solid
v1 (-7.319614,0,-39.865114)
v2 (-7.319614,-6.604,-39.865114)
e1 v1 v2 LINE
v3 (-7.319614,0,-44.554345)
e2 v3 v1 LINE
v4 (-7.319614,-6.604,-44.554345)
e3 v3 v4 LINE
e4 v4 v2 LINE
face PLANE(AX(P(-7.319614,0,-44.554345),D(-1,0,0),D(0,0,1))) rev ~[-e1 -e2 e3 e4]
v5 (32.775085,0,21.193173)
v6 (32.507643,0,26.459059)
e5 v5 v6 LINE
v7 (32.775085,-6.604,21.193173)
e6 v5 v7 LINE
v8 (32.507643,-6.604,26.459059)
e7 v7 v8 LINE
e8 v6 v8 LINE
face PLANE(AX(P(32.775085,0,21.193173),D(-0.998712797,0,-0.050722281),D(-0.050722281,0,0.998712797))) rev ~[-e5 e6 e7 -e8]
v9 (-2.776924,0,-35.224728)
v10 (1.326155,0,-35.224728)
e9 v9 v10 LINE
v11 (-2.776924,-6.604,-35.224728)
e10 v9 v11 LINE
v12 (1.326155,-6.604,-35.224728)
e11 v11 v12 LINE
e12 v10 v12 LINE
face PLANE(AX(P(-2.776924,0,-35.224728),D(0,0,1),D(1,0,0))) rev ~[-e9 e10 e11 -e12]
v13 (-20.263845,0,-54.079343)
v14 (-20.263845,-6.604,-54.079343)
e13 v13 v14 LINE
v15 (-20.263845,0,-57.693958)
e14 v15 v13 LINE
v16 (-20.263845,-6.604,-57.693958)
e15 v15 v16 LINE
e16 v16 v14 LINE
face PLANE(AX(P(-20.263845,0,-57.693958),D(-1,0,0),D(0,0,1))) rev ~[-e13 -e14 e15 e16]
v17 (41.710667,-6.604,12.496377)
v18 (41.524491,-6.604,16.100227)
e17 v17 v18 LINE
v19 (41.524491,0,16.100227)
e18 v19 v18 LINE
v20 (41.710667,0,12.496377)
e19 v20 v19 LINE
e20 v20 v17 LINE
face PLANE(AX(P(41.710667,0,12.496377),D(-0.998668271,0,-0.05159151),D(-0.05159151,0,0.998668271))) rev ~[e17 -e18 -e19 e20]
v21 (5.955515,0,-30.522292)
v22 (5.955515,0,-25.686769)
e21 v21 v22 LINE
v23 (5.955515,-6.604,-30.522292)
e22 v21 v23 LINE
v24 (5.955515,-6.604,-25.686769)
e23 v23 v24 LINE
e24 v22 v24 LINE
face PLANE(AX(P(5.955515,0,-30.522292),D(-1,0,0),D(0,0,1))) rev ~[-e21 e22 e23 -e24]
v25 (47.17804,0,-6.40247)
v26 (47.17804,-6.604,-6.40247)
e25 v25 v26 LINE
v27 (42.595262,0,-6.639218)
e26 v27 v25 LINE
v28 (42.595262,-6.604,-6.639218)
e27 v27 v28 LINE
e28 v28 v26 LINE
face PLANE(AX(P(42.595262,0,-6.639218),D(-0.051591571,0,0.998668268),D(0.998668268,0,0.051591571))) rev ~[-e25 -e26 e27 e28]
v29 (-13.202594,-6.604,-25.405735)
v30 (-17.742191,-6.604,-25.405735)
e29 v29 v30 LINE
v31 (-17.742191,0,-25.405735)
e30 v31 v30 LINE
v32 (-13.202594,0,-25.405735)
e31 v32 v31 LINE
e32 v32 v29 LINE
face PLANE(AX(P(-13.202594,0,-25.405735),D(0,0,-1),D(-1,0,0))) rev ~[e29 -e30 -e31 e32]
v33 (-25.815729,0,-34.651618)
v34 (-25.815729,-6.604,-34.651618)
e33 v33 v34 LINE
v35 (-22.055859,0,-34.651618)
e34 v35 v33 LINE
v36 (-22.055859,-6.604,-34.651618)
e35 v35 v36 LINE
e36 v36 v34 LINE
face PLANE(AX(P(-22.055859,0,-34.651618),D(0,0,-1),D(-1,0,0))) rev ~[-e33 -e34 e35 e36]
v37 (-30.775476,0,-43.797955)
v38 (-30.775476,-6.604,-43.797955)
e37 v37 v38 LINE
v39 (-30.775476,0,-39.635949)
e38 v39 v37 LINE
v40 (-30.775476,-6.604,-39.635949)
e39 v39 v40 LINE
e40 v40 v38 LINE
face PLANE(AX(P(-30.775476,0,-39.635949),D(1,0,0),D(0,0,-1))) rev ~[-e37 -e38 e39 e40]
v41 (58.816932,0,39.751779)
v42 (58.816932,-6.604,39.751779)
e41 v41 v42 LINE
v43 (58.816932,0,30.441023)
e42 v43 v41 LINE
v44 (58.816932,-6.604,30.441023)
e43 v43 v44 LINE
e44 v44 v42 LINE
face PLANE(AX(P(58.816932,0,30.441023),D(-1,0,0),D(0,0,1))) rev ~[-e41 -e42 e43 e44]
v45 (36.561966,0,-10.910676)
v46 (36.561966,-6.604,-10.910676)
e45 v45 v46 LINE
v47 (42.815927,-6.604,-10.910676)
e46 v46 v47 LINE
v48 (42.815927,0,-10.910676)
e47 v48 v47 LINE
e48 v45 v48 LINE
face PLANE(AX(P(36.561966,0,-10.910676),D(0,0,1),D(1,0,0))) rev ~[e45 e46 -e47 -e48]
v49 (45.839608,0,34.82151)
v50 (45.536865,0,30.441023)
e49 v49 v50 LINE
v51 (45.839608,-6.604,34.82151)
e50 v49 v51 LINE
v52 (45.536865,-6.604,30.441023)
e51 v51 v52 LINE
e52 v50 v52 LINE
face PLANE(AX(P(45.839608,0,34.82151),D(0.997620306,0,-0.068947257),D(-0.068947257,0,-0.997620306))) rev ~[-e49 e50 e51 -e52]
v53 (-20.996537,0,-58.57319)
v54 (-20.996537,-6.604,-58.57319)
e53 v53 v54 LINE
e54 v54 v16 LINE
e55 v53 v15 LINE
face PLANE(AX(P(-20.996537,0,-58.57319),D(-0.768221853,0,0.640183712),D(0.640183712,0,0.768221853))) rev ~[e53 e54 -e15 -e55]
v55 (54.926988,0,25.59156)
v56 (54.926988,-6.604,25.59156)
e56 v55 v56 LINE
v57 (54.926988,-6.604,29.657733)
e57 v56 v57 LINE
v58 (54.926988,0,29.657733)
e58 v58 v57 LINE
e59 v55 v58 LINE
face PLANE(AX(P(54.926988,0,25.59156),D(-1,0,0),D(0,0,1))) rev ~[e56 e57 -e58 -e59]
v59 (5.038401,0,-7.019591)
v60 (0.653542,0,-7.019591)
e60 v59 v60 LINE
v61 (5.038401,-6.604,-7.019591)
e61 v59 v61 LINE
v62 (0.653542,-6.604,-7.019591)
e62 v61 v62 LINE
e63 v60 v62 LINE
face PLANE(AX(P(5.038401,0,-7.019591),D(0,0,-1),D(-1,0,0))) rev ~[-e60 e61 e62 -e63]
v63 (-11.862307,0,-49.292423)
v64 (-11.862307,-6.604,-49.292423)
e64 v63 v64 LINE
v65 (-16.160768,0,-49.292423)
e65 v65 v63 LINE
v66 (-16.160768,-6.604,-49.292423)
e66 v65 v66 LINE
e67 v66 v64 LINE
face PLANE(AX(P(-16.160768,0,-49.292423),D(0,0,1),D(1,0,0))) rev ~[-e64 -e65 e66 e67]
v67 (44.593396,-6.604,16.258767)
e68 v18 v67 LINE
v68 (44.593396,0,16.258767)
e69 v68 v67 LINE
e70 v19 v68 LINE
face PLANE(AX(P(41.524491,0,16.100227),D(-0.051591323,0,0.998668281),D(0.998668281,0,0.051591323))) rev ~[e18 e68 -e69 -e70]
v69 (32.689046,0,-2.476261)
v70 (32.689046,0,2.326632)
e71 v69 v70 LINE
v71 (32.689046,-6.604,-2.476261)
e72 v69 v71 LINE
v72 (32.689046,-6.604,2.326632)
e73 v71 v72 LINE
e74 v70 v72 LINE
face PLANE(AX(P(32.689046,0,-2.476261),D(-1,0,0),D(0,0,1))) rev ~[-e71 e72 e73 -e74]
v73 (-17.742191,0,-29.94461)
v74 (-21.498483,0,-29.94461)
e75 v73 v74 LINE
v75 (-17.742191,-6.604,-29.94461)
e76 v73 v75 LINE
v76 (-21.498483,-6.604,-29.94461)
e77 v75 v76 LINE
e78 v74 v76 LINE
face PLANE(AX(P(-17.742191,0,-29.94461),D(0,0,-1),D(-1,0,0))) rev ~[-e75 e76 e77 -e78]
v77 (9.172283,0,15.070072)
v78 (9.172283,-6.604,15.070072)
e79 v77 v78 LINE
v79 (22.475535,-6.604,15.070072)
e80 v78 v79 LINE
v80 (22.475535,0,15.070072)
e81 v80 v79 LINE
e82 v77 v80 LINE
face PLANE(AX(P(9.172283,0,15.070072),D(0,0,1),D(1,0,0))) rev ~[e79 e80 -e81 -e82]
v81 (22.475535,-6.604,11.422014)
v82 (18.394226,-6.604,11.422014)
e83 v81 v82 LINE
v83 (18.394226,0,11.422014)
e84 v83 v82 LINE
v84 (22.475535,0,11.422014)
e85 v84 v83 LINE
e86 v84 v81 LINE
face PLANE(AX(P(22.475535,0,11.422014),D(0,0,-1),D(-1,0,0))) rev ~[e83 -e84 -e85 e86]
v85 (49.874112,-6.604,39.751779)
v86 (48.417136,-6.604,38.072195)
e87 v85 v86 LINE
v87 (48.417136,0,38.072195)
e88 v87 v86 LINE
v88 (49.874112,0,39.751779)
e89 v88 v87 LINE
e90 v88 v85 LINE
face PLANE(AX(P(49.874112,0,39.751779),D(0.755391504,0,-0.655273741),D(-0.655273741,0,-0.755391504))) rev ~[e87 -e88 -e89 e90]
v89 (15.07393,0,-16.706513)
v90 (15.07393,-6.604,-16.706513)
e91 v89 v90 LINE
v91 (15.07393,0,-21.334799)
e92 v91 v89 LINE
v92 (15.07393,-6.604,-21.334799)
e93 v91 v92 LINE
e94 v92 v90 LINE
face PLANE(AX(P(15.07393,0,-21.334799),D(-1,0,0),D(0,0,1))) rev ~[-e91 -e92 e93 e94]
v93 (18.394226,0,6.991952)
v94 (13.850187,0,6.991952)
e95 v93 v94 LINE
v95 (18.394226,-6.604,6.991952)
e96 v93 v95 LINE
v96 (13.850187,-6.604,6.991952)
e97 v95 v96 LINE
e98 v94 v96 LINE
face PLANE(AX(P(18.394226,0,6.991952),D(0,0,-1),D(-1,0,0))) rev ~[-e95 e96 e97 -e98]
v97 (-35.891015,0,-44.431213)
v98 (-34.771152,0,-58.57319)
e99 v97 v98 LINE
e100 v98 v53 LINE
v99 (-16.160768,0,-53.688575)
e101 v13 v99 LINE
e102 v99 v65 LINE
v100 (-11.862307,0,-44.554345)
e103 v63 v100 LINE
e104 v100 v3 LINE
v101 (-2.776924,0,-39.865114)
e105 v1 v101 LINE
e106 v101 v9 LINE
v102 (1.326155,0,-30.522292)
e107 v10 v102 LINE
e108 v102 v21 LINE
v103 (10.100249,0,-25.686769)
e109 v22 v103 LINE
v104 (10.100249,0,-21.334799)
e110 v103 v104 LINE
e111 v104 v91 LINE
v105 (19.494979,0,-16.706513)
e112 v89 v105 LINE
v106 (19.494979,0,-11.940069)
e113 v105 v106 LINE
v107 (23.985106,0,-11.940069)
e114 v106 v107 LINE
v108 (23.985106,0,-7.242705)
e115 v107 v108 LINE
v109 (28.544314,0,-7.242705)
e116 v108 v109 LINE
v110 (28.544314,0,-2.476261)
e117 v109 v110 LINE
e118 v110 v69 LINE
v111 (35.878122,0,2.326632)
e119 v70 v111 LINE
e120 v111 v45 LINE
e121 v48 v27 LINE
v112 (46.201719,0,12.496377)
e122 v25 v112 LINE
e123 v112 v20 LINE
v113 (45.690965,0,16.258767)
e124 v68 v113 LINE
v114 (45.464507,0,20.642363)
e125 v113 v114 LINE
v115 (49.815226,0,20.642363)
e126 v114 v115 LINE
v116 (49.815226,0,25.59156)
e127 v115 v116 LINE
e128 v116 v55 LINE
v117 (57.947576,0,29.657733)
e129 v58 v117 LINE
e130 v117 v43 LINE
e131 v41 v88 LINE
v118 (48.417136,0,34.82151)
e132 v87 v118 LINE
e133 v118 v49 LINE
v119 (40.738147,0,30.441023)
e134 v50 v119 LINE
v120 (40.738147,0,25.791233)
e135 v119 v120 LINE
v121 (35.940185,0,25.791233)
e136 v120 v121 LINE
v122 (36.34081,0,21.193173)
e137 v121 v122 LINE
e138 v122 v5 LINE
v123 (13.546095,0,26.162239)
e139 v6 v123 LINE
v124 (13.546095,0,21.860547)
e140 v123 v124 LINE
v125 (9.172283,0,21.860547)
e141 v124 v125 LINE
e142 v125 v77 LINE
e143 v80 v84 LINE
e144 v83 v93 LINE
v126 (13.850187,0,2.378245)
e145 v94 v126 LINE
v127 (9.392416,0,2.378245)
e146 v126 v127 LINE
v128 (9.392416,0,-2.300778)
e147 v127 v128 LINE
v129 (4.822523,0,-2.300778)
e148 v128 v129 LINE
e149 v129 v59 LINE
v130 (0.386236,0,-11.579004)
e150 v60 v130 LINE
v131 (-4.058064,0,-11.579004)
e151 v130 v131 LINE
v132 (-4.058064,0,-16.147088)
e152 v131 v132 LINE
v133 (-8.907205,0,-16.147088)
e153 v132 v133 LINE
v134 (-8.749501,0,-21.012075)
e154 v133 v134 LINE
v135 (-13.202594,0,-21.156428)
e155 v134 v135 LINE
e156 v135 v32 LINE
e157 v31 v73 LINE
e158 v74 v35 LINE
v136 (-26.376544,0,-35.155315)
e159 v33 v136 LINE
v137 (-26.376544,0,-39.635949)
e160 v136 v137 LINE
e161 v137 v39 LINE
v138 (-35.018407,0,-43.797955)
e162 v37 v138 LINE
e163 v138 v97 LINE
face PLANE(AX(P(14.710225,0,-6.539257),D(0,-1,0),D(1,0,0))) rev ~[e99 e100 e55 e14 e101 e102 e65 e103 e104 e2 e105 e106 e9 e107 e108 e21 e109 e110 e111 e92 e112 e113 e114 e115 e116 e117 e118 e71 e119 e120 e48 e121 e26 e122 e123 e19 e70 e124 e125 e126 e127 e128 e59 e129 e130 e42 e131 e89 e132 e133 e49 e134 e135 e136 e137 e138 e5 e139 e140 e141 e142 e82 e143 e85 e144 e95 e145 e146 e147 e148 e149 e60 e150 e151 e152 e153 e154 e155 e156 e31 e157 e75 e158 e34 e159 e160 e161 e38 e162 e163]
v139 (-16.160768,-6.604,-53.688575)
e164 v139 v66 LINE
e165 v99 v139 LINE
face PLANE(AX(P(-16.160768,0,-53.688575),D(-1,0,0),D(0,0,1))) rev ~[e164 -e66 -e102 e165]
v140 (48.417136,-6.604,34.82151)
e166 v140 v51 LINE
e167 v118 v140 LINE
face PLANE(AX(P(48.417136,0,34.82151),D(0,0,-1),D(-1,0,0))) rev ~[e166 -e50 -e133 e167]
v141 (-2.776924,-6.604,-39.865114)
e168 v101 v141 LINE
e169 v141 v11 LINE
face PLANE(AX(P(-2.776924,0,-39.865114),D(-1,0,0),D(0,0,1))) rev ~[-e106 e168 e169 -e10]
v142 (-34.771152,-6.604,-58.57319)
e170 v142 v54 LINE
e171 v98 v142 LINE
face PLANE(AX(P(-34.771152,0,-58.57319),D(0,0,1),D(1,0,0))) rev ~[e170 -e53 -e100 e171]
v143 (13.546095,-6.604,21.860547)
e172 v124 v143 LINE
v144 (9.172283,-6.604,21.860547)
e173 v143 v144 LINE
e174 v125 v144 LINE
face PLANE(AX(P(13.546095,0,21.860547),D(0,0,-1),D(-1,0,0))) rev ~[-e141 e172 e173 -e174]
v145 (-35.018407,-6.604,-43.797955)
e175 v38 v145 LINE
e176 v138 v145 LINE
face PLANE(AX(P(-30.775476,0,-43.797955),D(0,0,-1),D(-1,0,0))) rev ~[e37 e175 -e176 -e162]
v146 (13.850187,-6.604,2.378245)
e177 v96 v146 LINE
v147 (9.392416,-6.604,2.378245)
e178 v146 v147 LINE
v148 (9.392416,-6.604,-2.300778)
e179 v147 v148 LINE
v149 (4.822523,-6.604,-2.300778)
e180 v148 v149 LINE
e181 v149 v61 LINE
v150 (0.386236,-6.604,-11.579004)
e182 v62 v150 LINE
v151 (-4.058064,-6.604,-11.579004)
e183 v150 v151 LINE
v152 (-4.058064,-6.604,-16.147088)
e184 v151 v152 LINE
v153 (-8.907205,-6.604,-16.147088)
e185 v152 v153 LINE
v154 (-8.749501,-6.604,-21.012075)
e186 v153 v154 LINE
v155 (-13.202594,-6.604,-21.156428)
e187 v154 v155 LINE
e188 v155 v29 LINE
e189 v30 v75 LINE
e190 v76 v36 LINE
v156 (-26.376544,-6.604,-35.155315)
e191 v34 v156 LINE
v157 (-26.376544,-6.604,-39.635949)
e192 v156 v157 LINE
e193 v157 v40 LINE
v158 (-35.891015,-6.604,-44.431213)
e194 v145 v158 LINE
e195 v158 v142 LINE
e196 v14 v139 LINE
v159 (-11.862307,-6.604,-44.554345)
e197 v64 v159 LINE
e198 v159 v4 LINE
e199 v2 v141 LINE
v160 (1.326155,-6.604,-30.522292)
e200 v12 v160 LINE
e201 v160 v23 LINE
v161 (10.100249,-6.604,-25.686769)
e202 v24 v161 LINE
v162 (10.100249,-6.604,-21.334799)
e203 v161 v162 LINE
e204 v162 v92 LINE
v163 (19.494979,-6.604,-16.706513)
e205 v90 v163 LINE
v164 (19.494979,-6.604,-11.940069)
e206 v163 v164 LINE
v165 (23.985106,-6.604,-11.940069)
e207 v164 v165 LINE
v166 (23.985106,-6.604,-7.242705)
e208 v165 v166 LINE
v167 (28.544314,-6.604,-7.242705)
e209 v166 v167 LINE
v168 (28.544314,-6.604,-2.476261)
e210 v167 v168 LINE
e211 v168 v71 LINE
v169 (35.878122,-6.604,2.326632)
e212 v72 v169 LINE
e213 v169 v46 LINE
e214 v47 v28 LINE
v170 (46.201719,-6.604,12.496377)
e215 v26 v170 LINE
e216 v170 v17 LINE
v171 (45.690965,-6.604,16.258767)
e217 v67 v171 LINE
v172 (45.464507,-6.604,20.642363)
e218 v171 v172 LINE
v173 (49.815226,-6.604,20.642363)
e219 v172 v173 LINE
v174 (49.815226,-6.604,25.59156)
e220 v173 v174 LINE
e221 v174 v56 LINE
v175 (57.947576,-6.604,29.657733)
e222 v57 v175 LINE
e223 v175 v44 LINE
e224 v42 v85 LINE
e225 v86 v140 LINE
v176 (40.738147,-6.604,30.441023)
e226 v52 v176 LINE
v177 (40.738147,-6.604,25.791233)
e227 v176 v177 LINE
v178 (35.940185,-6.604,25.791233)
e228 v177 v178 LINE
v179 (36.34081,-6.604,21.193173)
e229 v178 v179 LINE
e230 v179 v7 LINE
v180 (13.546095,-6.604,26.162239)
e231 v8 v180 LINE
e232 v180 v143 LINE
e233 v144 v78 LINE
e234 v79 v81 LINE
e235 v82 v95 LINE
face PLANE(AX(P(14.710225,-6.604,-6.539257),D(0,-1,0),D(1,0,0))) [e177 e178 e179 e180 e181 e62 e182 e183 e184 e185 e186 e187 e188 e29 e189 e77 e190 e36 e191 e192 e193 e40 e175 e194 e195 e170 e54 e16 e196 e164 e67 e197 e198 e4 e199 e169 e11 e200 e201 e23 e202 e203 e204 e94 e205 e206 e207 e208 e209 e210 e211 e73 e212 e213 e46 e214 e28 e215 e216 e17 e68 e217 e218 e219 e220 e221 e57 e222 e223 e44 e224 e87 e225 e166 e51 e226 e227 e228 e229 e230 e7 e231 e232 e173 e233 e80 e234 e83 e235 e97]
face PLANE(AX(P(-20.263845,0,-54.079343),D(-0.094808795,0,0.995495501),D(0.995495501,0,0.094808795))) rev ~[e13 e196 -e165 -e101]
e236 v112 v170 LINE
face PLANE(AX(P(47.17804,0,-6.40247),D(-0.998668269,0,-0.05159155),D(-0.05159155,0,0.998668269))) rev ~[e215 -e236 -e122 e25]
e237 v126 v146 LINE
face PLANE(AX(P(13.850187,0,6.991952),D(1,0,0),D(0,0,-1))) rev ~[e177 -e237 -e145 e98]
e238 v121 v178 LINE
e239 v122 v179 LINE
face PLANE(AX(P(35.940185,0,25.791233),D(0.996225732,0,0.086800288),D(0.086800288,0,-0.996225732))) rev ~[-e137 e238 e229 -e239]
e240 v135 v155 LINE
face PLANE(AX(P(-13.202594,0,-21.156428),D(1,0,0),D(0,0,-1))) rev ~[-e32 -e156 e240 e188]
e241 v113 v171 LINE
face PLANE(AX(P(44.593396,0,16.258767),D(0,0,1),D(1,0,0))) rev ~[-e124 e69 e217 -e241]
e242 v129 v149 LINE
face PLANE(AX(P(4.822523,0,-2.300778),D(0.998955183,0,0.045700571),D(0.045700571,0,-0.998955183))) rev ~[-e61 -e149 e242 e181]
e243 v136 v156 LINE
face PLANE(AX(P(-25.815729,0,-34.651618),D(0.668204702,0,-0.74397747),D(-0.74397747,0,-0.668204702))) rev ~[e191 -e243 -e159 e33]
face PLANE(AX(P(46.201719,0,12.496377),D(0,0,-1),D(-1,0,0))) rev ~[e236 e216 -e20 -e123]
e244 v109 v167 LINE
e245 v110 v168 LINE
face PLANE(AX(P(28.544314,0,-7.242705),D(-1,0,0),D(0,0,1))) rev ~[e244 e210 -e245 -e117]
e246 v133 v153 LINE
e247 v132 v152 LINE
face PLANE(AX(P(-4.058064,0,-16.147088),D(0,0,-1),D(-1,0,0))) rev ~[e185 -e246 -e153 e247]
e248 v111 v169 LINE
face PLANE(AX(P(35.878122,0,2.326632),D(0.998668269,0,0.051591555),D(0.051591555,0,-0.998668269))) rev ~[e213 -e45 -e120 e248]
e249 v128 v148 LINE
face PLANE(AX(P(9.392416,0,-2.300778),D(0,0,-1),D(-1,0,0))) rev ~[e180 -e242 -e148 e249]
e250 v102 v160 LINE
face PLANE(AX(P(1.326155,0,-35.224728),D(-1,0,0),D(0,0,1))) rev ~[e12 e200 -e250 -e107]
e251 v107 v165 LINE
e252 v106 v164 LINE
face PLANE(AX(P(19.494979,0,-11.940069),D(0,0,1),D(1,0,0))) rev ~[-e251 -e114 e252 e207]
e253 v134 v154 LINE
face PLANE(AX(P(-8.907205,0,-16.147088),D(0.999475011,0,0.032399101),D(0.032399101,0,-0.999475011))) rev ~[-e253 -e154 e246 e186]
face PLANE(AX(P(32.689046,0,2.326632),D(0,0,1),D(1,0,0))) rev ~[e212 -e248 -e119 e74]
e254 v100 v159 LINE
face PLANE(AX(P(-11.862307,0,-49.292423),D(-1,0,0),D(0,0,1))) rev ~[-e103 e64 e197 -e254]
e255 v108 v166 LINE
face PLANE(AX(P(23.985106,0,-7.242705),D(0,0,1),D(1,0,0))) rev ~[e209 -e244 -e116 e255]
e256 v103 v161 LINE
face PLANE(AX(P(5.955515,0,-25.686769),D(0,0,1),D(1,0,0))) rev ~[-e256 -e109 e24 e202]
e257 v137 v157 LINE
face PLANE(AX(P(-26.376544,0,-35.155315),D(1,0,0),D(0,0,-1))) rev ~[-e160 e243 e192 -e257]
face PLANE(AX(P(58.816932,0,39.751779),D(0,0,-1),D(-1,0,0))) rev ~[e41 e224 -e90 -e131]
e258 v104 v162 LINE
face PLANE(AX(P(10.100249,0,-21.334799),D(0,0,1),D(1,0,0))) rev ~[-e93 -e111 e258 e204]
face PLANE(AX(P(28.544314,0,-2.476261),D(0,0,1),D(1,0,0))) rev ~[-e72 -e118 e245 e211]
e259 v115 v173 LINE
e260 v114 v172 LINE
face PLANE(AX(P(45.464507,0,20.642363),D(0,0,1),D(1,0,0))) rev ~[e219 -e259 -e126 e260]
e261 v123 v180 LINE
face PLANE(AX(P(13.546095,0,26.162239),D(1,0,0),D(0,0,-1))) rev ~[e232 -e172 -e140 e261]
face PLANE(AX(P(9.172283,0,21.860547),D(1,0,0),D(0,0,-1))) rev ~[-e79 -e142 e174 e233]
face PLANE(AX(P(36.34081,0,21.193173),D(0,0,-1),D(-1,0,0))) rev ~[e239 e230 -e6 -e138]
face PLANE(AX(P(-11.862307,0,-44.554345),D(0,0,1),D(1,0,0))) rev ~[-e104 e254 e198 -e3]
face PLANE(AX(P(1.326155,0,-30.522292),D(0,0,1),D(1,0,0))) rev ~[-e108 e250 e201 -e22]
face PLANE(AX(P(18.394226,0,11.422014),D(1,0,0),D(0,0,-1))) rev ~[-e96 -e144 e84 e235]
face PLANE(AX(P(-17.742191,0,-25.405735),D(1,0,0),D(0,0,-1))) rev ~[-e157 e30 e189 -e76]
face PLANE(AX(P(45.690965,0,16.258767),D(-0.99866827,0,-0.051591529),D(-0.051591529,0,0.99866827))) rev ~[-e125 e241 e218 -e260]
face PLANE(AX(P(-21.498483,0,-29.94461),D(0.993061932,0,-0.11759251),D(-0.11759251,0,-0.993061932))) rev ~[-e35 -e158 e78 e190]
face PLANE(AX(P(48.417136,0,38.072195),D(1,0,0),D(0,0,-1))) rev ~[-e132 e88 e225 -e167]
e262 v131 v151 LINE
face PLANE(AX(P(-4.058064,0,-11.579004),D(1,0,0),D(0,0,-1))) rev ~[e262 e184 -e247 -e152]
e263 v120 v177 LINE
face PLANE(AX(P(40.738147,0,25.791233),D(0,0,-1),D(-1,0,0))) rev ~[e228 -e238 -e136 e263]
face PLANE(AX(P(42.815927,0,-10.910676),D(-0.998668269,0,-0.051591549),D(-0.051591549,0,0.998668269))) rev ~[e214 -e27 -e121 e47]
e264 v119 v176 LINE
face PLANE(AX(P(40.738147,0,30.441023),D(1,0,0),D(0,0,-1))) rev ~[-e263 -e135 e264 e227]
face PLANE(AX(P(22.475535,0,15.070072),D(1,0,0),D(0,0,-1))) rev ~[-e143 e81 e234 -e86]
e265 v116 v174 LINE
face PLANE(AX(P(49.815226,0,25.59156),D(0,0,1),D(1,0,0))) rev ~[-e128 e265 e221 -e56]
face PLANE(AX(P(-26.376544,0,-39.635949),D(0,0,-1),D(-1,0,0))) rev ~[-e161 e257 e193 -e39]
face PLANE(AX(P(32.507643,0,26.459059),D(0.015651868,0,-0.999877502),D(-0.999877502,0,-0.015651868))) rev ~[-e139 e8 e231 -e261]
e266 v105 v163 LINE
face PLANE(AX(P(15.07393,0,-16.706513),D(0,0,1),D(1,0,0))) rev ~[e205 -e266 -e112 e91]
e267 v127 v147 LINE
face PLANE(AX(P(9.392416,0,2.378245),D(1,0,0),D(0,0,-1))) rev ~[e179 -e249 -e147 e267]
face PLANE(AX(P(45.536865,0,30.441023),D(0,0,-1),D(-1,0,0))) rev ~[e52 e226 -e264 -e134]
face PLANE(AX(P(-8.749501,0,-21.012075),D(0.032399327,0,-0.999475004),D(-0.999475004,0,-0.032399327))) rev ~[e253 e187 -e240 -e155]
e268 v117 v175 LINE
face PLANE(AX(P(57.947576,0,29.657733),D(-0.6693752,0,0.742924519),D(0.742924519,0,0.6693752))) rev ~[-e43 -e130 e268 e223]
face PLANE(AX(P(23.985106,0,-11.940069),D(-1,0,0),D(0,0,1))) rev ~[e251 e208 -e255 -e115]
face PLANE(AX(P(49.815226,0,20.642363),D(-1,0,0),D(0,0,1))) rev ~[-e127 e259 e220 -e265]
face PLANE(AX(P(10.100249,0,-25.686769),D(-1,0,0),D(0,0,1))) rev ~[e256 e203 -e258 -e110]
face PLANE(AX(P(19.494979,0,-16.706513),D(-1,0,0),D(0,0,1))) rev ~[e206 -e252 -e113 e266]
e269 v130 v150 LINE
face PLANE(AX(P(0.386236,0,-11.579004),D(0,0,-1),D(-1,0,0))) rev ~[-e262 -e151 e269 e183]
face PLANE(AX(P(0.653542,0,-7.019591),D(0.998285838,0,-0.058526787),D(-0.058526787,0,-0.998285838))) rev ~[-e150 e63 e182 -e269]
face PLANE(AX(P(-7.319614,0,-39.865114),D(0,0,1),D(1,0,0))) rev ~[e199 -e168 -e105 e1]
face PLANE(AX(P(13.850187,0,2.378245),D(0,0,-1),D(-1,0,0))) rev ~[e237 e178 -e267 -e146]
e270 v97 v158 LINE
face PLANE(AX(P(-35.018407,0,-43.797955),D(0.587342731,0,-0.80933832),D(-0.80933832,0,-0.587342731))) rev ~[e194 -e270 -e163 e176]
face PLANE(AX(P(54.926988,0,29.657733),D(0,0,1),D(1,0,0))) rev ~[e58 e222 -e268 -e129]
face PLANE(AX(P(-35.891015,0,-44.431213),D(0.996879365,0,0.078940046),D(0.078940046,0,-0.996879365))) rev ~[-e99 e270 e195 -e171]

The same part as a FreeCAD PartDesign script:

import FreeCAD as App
import Part
import Sketcher

V = App.Vector

doc = App.newDocument("Part")
params = doc.addObject("Spreadsheet::Sheet", "Params")
for row, (alias, value) in enumerate([
    ("pad1_length", "0.26 in"),
], start=1):
    params.set(f"A{row}", alias)
    params.set(f"B{row}", "=" + value)
    params.setAlias(f"B{row}", alias)

body = doc.addObject("PartDesign::Body", "Body")

sketch1 = body.newObject("Sketcher::SketchObject", "Sketch")
sketch1.AttachmentSupport = (doc.getObject("XZ_Plane"), [""])
sketch1.MapMode = "FlatFace"
sketch1.addGeometry(Part.LineSegment(V(-35.891015, -44.431213, 0), V(-34.771152, -58.57319, 0)), False)
sketch1.addGeometry(Part.LineSegment(V(-34.771152, -58.57319, 0), V(-20.996537, -58.57319, 0)), False)
sketch1.addGeometry(Part.LineSegment(V(-20.996537, -58.57319, 0), V(-20.263845, -57.693958, 0)), False)
sketch1.addGeometry(Part.LineSegment(V(-20.263845, -57.693958, 0), V(-20.263845, -54.079343, 0)), False)
sketch1.addGeometry(Part.LineSegment(V(-20.263845, -54.079343, 0), V(-16.160768, -53.688575, 0)), False)
sketch1.addGeometry(Part.LineSegment(V(-16.160768, -53.688575, 0), V(-16.160768, -49.292423, 0)), False)
sketch1.addGeometry(Part.LineSegment(V(-16.160768, -49.292423, 0), V(-11.862307, -49.292423, 0)), False)
sketch1.addGeometry(Part.LineSegment(V(-11.862307, -49.292423, 0), V(-11.862307, -44.554345, 0)), False)
sketch1.addGeometry(Part.LineSegment(V(-11.862307, -44.554345, 0), V(-7.319614, -44.554345, 0)), False)
sketch1.addGeometry(Part.LineSegment(V(-7.319614, -44.554345, 0), V(-7.319614, -39.865114, 0)), False)
sketch1.addGeometry(Part.LineSegment(V(-7.319614, -39.865114, 0), V(-2.776924, -39.865114, 0)), False)
sketch1.addGeometry(Part.LineSegment(V(-2.776924, -39.865114, 0), V(-2.776924, -35.224728, 0)), False)
sketch1.addGeometry(Part.LineSegment(V(-2.776924, -35.224728, 0), V(1.326155, -35.224728, 0)), False)
sketch1.addGeometry(Part.LineSegment(V(1.326155, -35.224728, 0), V(1.326155, -30.522292, 0)), False)
sketch1.addGeometry(Part.LineSegment(V(1.326155, -30.522292, 0), V(5.955515, -30.522292, 0)), False)
sketch1.addGeometry(Part.LineSegment(V(5.955515, -30.522292, 0), V(5.955515, -25.686769, 0)), False)
sketch1.addGeometry(Part.LineSegment(V(5.955515, -25.686769, 0), V(10.100249, -25.686769, 0)), False)
sketch1.addGeometry(Part.LineSegment(V(10.100249, -25.686769, 0), V(10.100249, -21.334799, 0)), False)
sketch1.addGeometry(Part.LineSegment(V(10.100249, -21.334799, 0), V(15.07393, -21.334799, 0)), False)
sketch1.addGeometry(Part.LineSegment(V(15.07393, -21.334799, 0), V(15.07393, -16.706513, 0)), False)
sketch1.addGeometry(Part.LineSegment(V(15.07393, -16.706513, 0), V(19.494979, -16.706513, 0)), False)
sketch1.addGeometry(Part.LineSegment(V(19.494979, -16.706513, 0), V(19.494979, -11.940069, 0)), False)
sketch1.addGeometry(Part.LineSegment(V(19.494979, -11.940069, 0), V(23.985106, -11.940069, 0)), False)
sketch1.addGeometry(Part.LineSegment(V(23.985106, -11.940069, 0), V(23.985106, -7.242705, 0)), False)
sketch1.addGeometry(Part.LineSegment(V(23.985106, -7.242705, 0), V(28.544314, -7.242705, 0)), False)
sketch1.addGeometry(Part.LineSegment(V(28.544314, -7.242705, 0), V(28.544314, -2.476261, 0)), False)
sketch1.addGeometry(Part.LineSegment(V(28.544314, -2.476261, 0), V(32.689046, -2.476261, 0)), False)
sketch1.addGeometry(Part.LineSegment(V(32.689046, -2.476261, 0), V(32.689046, 2.326632, 0)), False)
sketch1.addGeometry(Part.LineSegment(V(32.689046, 2.326632, 0), V(35.878122, 2.326632, 0)), False)
sketch1.addGeometry(Part.LineSegment(V(35.878122, 2.326632, 0), V(36.561966, -10.910676, 0)), False)
sketch1.addGeometry(Part.LineSegment(V(36.561966, -10.910676, 0), V(42.815927, -10.910676, 0)), False)
sketch1.addGeometry(Part.LineSegment(V(42.815927, -10.910676, 0), V(42.595262, -6.639218, 0)), False)
sketch1.addGeometry(Part.LineSegment(V(42.595262, -6.639218, 0), V(47.17804, -6.40247, 0)), False)
sketch1.addGeometry(Part.LineSegment(V(47.17804, -6.40247, 0), V(46.201719, 12.496377, 0)), False)
sketch1.addGeometry(Part.LineSegment(V(46.201719, 12.496377, 0), V(41.710667, 12.496377, 0)), False)
sketch1.addGeometry(Part.LineSegment(V(41.710667, 12.496377, 0), V(41.524491, 16.100227, 0)), False)
sketch1.addGeometry(Part.LineSegment(V(41.524491, 16.100227, 0), V(44.593396, 16.258767, 0)), False)
sketch1.addGeometry(Part.LineSegment(V(44.593396, 16.258767, 0), V(45.690965, 16.258767, 0)), False)
sketch1.addGeometry(Part.LineSegment(V(45.690965, 16.258767, 0), V(45.464507, 20.642363, 0)), False)
sketch1.addGeometry(Part.LineSegment(V(45.464507, 20.642363, 0), V(49.815226, 20.642363, 0)), False)
sketch1.addGeometry(Part.LineSegment(V(49.815226, 20.642363, 0), V(49.815226, 25.59156, 0)), False)
sketch1.addGeometry(Part.LineSegment(V(49.815226, 25.59156, 0), V(54.926988, 25.59156, 0)), False)
sketch1.addGeometry(Part.LineSegment(V(54.926988, 25.59156, 0), V(54.926988, 29.657733, 0)), False)
sketch1.addGeometry(Part.LineSegment(V(54.926988, 29.657733, 0), V(57.947576, 29.657733, 0)), False)
sketch1.addGeometry(Part.LineSegment(V(57.947576, 29.657733, 0), V(58.816932, 30.441023, 0)), False)
sketch1.addGeometry(Part.LineSegment(V(58.816932, 30.441023, 0), V(58.816932, 39.751779, 0)), False)
sketch1.addGeometry(Part.LineSegment(V(58.816932, 39.751779, 0), V(49.874112, 39.751779, 0)), False)
sketch1.addGeometry(Part.LineSegment(V(49.874112, 39.751779, 0), V(48.417136, 38.072195, 0)), False)
sketch1.addGeometry(Part.LineSegment(V(48.417136, 38.072195, 0), V(48.417136, 34.82151, 0)), False)
sketch1.addGeometry(Part.LineSegment(V(48.417136, 34.82151, 0), V(45.839608, 34.82151, 0)), False)
sketch1.addGeometry(Part.LineSegment(V(45.839608, 34.82151, 0), V(45.536865, 30.441023, 0)), False)
sketch1.addGeometry(Part.LineSegment(V(45.536865, 30.441023, 0), V(40.738147, 30.441023, 0)), False)
sketch1.addGeometry(Part.LineSegment(V(40.738147, 30.441023, 0), V(40.738147, 25.791233, 0)), False)
sketch1.addGeometry(Part.LineSegment(V(40.738147, 25.791233, 0), V(35.940185, 25.791233, 0)), False)
sketch1.addGeometry(Part.LineSegment(V(35.940185, 25.791233, 0), V(36.34081, 21.193173, 0)), False)
sketch1.addGeometry(Part.LineSegment(V(36.34081, 21.193173, 0), V(32.775085, 21.193173, 0)), False)
sketch1.addGeometry(Part.LineSegment(V(32.775085, 21.193173, 0), V(32.507643, 26.459059, 0)), False)
sketch1.addGeometry(Part.LineSegment(V(32.507643, 26.459059, 0), V(13.546095, 26.162239, 0)), False)
sketch1.addGeometry(Part.LineSegment(V(13.546095, 26.162239, 0), V(13.546095, 21.860547, 0)), False)
sketch1.addGeometry(Part.LineSegment(V(13.546095, 21.860547, 0), V(9.172283, 21.860547, 0)), False)
sketch1.addGeometry(Part.LineSegment(V(9.172283, 21.860547, 0), V(9.172283, 15.070072, 0)), False)
sketch1.addGeometry(Part.LineSegment(V(9.172283, 15.070072, 0), V(22.475535, 15.070072, 0)), False)
sketch1.addGeometry(Part.LineSegment(V(22.475535, 15.070072, 0), V(22.475535, 11.422014, 0)), False)
sketch1.addGeometry(Part.LineSegment(V(22.475535, 11.422014, 0), V(18.394226, 11.422014, 0)), False)
sketch1.addGeometry(Part.LineSegment(V(18.394226, 11.422014, 0), V(18.394226, 6.991952, 0)), False)
sketch1.addGeometry(Part.LineSegment(V(18.394226, 6.991952, 0), V(13.850187, 6.991952, 0)), False)
sketch1.addGeometry(Part.LineSegment(V(13.850187, 6.991952, 0), V(13.850187, 2.378245, 0)), False)
sketch1.addGeometry(Part.LineSegment(V(13.850187, 2.378245, 0), V(9.392416, 2.378245, 0)), False)
sketch1.addGeometry(Part.LineSegment(V(9.392416, 2.378245, 0), V(9.392416, -2.300778, 0)), False)
sketch1.addGeometry(Part.LineSegment(V(9.392416, -2.300778, 0), V(4.822523, -2.300778, 0)), False)
sketch1.addGeometry(Part.LineSegment(V(4.822523, -2.300778, 0), V(5.038401, -7.019591, 0)), False)
sketch1.addGeometry(Part.LineSegment(V(5.038401, -7.019591, 0), V(0.653542, -7.019591, 0)), False)
sketch1.addGeometry(Part.LineSegment(V(0.653542, -7.019591, 0), V(0.386236, -11.579004, 0)), False)
sketch1.addGeometry(Part.LineSegment(V(0.386236, -11.579004, 0), V(-4.058064, -11.579004, 0)), False)
sketch1.addGeometry(Part.LineSegment(V(-4.058064, -11.579004, 0), V(-4.058064, -16.147088, 0)), False)
sketch1.addGeometry(Part.LineSegment(V(-4.058064, -16.147088, 0), V(-8.907205, -16.147088, 0)), False)
sketch1.addGeometry(Part.LineSegment(V(-8.907205, -16.147088, 0), V(-8.749501, -21.012075, 0)), False)
sketch1.addGeometry(Part.LineSegment(V(-8.749501, -21.012075, 0), V(-13.202594, -21.156428, 0)), False)
sketch1.addGeometry(Part.LineSegment(V(-13.202594, -21.156428, 0), V(-13.202594, -25.405735, 0)), False)
sketch1.addGeometry(Part.LineSegment(V(-13.202594, -25.405735, 0), V(-17.742191, -25.405735, 0)), False)
sketch1.addGeometry(Part.LineSegment(V(-17.742191, -25.405735, 0), V(-17.742191, -29.94461, 0)), False)
sketch1.addGeometry(Part.LineSegment(V(-17.742191, -29.94461, 0), V(-21.498483, -29.94461, 0)), False)
sketch1.addGeometry(Part.LineSegment(V(-21.498483, -29.94461, 0), V(-22.055859, -34.651618, 0)), False)
sketch1.addGeometry(Part.LineSegment(V(-22.055859, -34.651618, 0), V(-25.815729, -34.651618, 0)), False)
sketch1.addGeometry(Part.LineSegment(V(-25.815729, -34.651618, 0), V(-26.376544, -35.155315, 0)), False)
sketch1.addGeometry(Part.LineSegment(V(-26.376544, -35.155315, 0), V(-26.376544, -39.635949, 0)), False)
sketch1.addGeometry(Part.LineSegment(V(-26.376544, -39.635949, 0), V(-30.775476, -39.635949, 0)), False)
sketch1.addGeometry(Part.LineSegment(V(-30.775476, -39.635949, 0), V(-30.775476, -43.797955, 0)), False)
sketch1.addGeometry(Part.LineSegment(V(-30.775476, -43.797955, 0), V(-35.018407, -43.797955, 0)), False)
sketch1.addGeometry(Part.LineSegment(V(-35.018407, -43.797955, 0), V(-35.891015, -44.431213, 0)), False)
sketch1.addConstraint(Sketcher.Constraint("Coincident", 0, 2, 1, 1))
sketch1.addConstraint(Sketcher.Constraint("Coincident", 1, 2, 2, 1))
sketch1.addConstraint(Sketcher.Constraint("Coincident", 2, 2, 3, 1))
sketch1.addConstraint(Sketcher.Constraint("Coincident", 3, 2, 4, 1))
sketch1.addConstraint(Sketcher.Constraint("Coincident", 4, 2, 5, 1))
sketch1.addConstraint(Sketcher.Constraint("Coincident", 5, 2, 6, 1))
sketch1.addConstraint(Sketcher.Constraint("Coincident", 6, 2, 7, 1))
sketch1.addConstraint(Sketcher.Constraint("Coincident", 7, 2, 8, 1))
sketch1.addConstraint(Sketcher.Constraint("Coincident", 8, 2, 9, 1))
sketch1.addConstraint(Sketcher.Constraint("Coincident", 9, 2, 10, 1))
sketch1.addConstraint(Sketcher.Constraint("Coincident", 10, 2, 11, 1))
sketch1.addConstraint(Sketcher.Constraint("Coincident", 11, 2, 12, 1))
sketch1.addConstraint(Sketcher.Constraint("Coincident", 12, 2, 13, 1))
sketch1.addConstraint(Sketcher.Constraint("Coincident", 13, 2, 14, 1))
sketch1.addConstraint(Sketcher.Constraint("Coincident", 14, 2, 15, 1))
sketch1.addConstraint(Sketcher.Constraint("Coincident", 15, 2, 16, 1))
sketch1.addConstraint(Sketcher.Constraint("Coincident", 16, 2, 17, 1))
sketch1.addConstraint(Sketcher.Constraint("Coincident", 17, 2, 18, 1))
sketch1.addConstraint(Sketcher.Constraint("Coincident", 18, 2, 19, 1))
sketch1.addConstraint(Sketcher.Constraint("Coincident", 19, 2, 20, 1))
sketch1.addConstraint(Sketcher.Constraint("Coincident", 20, 2, 21, 1))
sketch1.addConstraint(Sketcher.Constraint("Coincident", 21, 2, 22, 1))
sketch1.addConstraint(Sketcher.Constraint("Coincident", 22, 2, 23, 1))
sketch1.addConstraint(Sketcher.Constraint("Coincident", 23, 2, 24, 1))
sketch1.addConstraint(Sketcher.Constraint("Coincident", 24, 2, 25, 1))
sketch1.addConstraint(Sketcher.Constraint("Coincident", 25, 2, 26, 1))
sketch1.addConstraint(Sketcher.Constraint("Coincident", 26, 2, 27, 1))
sketch1.addConstraint(Sketcher.Constraint("Coincident", 27, 2, 28, 1))
sketch1.addConstraint(Sketcher.Constraint("Coincident", 28, 2, 29, 1))
sketch1.addConstraint(Sketcher.Constraint("Coincident", 29, 2, 30, 1))
sketch1.addConstraint(Sketcher.Constraint("Coincident", 30, 2, 31, 1))
sketch1.addConstraint(Sketcher.Constraint("Coincident", 31, 2, 32, 1))
sketch1.addConstraint(Sketcher.Constraint("Coincident", 32, 2, 33, 1))
sketch1.addConstraint(Sketcher.Constraint("Coincident", 33, 2, 34, 1))
sketch1.addConstraint(Sketcher.Constraint("Coincident", 34, 2, 35, 1))
sketch1.addConstraint(Sketcher.Constraint("Coincident", 35, 2, 36, 1))
sketch1.addConstraint(Sketcher.Constraint("Coincident", 36, 2, 37, 1))
sketch1.addConstraint(Sketcher.Constraint("Coincident", 37, 2, 38, 1))
sketch1.addConstraint(Sketcher.Constraint("Coincident", 38, 2, 39, 1))
sketch1.addConstraint(Sketcher.Constraint("Coincident", 39, 2, 40, 1))
sketch1.addConstraint(Sketcher.Constraint("Coincident", 40, 2, 41, 1))
sketch1.addConstraint(Sketcher.Constraint("Coincident", 41, 2, 42, 1))
sketch1.addConstraint(Sketcher.Constraint("Coincident", 42, 2, 43, 1))
sketch1.addConstraint(Sketcher.Constraint("Coincident", 43, 2, 44, 1))
sketch1.addConstraint(Sketcher.Constraint("Coincident", 44, 2, 45, 1))
sketch1.addConstraint(Sketcher.Constraint("Coincident", 45, 2, 46, 1))
sketch1.addConstraint(Sketcher.Constraint("Coincident", 46, 2, 47, 1))
sketch1.addConstraint(Sketcher.Constraint("Coincident", 47, 2, 48, 1))
sketch1.addConstraint(Sketcher.Constraint("Coincident", 48, 2, 49, 1))
sketch1.addConstraint(Sketcher.Constraint("Coincident", 49, 2, 50, 1))
sketch1.addConstraint(Sketcher.Constraint("Coincident", 50, 2, 51, 1))
sketch1.addConstraint(Sketcher.Constraint("Coincident", 51, 2, 52, 1))
sketch1.addConstraint(Sketcher.Constraint("Coincident", 52, 2, 53, 1))
sketch1.addConstraint(Sketcher.Constraint("Coincident", 53, 2, 54, 1))
sketch1.addConstraint(Sketcher.Constraint("Coincident", 54, 2, 55, 1))
sketch1.addConstraint(Sketcher.Constraint("Coincident", 55, 2, 56, 1))
sketch1.addConstraint(Sketcher.Constraint("Coincident", 56, 2, 57, 1))
sketch1.addConstraint(Sketcher.Constraint("Coincident", 57, 2, 58, 1))
sketch1.addConstraint(Sketcher.Constraint("Coincident", 58, 2, 59, 1))
sketch1.addConstraint(Sketcher.Constraint("Coincident", 59, 2, 60, 1))
sketch1.addConstraint(Sketcher.Constraint("Coincident", 60, 2, 61, 1))
sketch1.addConstraint(Sketcher.Constraint("Coincident", 61, 2, 62, 1))
sketch1.addConstraint(Sketcher.Constraint("Coincident", 62, 2, 63, 1))
sketch1.addConstraint(Sketcher.Constraint("Coincident", 63, 2, 64, 1))
sketch1.addConstraint(Sketcher.Constraint("Coincident", 64, 2, 65, 1))
sketch1.addConstraint(Sketcher.Constraint("Coincident", 65, 2, 66, 1))
sketch1.addConstraint(Sketcher.Constraint("Coincident", 66, 2, 67, 1))
sketch1.addConstraint(Sketcher.Constraint("Coincident", 67, 2, 68, 1))
sketch1.addConstraint(Sketcher.Constraint("Coincident", 68, 2, 69, 1))
sketch1.addConstraint(Sketcher.Constraint("Coincident", 69, 2, 70, 1))
sketch1.addConstraint(Sketcher.Constraint("Coincident", 70, 2, 71, 1))
sketch1.addConstraint(Sketcher.Constraint("Coincident", 71, 2, 72, 1))
sketch1.addConstraint(Sketcher.Constraint("Coincident", 72, 2, 73, 1))
sketch1.addConstraint(Sketcher.Constraint("Coincident", 73, 2, 74, 1))
sketch1.addConstraint(Sketcher.Constraint("Coincident", 74, 2, 75, 1))
sketch1.addConstraint(Sketcher.Constraint("Coincident", 75, 2, 76, 1))
sketch1.addConstraint(Sketcher.Constraint("Coincident", 76, 2, 77, 1))
sketch1.addConstraint(Sketcher.Constraint("Coincident", 77, 2, 78, 1))
sketch1.addConstraint(Sketcher.Constraint("Coincident", 78, 2, 79, 1))
sketch1.addConstraint(Sketcher.Constraint("Coincident", 79, 2, 80, 1))
sketch1.addConstraint(Sketcher.Constraint("Coincident", 80, 2, 81, 1))
sketch1.addConstraint(Sketcher.Constraint("Coincident", 81, 2, 82, 1))
sketch1.addConstraint(Sketcher.Constraint("Coincident", 82, 2, 83, 1))
sketch1.addConstraint(Sketcher.Constraint("Coincident", 83, 2, 84, 1))
sketch1.addConstraint(Sketcher.Constraint("Coincident", 84, 2, 85, 1))
sketch1.addConstraint(Sketcher.Constraint("Coincident", 85, 2, 86, 1))
sketch1.addConstraint(Sketcher.Constraint("Coincident", 86, 2, 87, 1))
sketch1.addConstraint(Sketcher.Constraint("Coincident", 87, 2, 88, 1))
sketch1.addConstraint(Sketcher.Constraint("Coincident", 88, 2, 89, 1))
sketch1.addConstraint(Sketcher.Constraint("Coincident", 89, 2, 0, 1))
sketch1.addConstraint(Sketcher.Constraint("Horizontal", 1))
sketch1.addConstraint(Sketcher.Constraint("Vertical", 3))
sketch1.addConstraint(Sketcher.Constraint("Vertical", 5))
sketch1.addConstraint(Sketcher.Constraint("Horizontal", 6))
sketch1.addConstraint(Sketcher.Constraint("Vertical", 7))
sketch1.addConstraint(Sketcher.Constraint("Horizontal", 8))
sketch1.addConstraint(Sketcher.Constraint("Vertical", 9))
sketch1.addConstraint(Sketcher.Constraint("Horizontal", 10))
sketch1.addConstraint(Sketcher.Constraint("Vertical", 11))
sketch1.addConstraint(Sketcher.Constraint("Horizontal", 12))
sketch1.addConstraint(Sketcher.Constraint("Vertical", 13))
sketch1.addConstraint(Sketcher.Constraint("Horizontal", 14))
sketch1.addConstraint(Sketcher.Constraint("Vertical", 15))
sketch1.addConstraint(Sketcher.Constraint("Horizontal", 16))
sketch1.addConstraint(Sketcher.Constraint("Vertical", 17))
sketch1.addConstraint(Sketcher.Constraint("Horizontal", 18))
sketch1.addConstraint(Sketcher.Constraint("Vertical", 19))
sketch1.addConstraint(Sketcher.Constraint("Horizontal", 20))
sketch1.addConstraint(Sketcher.Constraint("Vertical", 21))
sketch1.addConstraint(Sketcher.Constraint("Horizontal", 22))
sketch1.addConstraint(Sketcher.Constraint("Vertical", 23))
sketch1.addConstraint(Sketcher.Constraint("Horizontal", 24))
sketch1.addConstraint(Sketcher.Constraint("Vertical", 25))
sketch1.addConstraint(Sketcher.Constraint("Horizontal", 26))
sketch1.addConstraint(Sketcher.Constraint("Vertical", 27))
sketch1.addConstraint(Sketcher.Constraint("Horizontal", 28))
sketch1.addConstraint(Sketcher.Constraint("Horizontal", 30))
sketch1.addConstraint(Sketcher.Constraint("Horizontal", 34))
sketch1.addConstraint(Sketcher.Constraint("Horizontal", 37))
sketch1.addConstraint(Sketcher.Constraint("Horizontal", 39))
sketch1.addConstraint(Sketcher.Constraint("Vertical", 40))
sketch1.addConstraint(Sketcher.Constraint("Horizontal", 41))
sketch1.addConstraint(Sketcher.Constraint("Vertical", 42))
sketch1.addConstraint(Sketcher.Constraint("Horizontal", 43))
sketch1.addConstraint(Sketcher.Constraint("Vertical", 45))
sketch1.addConstraint(Sketcher.Constraint("Horizontal", 46))
sketch1.addConstraint(Sketcher.Constraint("Vertical", 48))
sketch1.addConstraint(Sketcher.Constraint("Horizontal", 49))
sketch1.addConstraint(Sketcher.Constraint("Horizontal", 51))
sketch1.addConstraint(Sketcher.Constraint("Vertical", 52))
sketch1.addConstraint(Sketcher.Constraint("Horizontal", 53))
sketch1.addConstraint(Sketcher.Constraint("Horizontal", 55))
sketch1.addConstraint(Sketcher.Constraint("Vertical", 58))
sketch1.addConstraint(Sketcher.Constraint("Horizontal", 59))
sketch1.addConstraint(Sketcher.Constraint("Vertical", 60))
sketch1.addConstraint(Sketcher.Constraint("Horizontal", 61))
sketch1.addConstraint(Sketcher.Constraint("Vertical", 62))
sketch1.addConstraint(Sketcher.Constraint("Horizontal", 63))
sketch1.addConstraint(Sketcher.Constraint("Vertical", 64))
sketch1.addConstraint(Sketcher.Constraint("Horizontal", 65))
sketch1.addConstraint(Sketcher.Constraint("Vertical", 66))
sketch1.addConstraint(Sketcher.Constraint("Horizontal", 67))
sketch1.addConstraint(Sketcher.Constraint("Vertical", 68))
sketch1.addConstraint(Sketcher.Constraint("Horizontal", 69))
sketch1.addConstraint(Sketcher.Constraint("Horizontal", 71))
sketch1.addConstraint(Sketcher.Constraint("Horizontal", 73))
sketch1.addConstraint(Sketcher.Constraint("Vertical", 74))
sketch1.addConstraint(Sketcher.Constraint("Horizontal", 75))
sketch1.addConstraint(Sketcher.Constraint("Vertical", 78))
sketch1.addConstraint(Sketcher.Constraint("Horizontal", 79))
sketch1.addConstraint(Sketcher.Constraint("Vertical", 80))
sketch1.addConstraint(Sketcher.Constraint("Horizontal", 81))
sketch1.addConstraint(Sketcher.Constraint("Horizontal", 83))
sketch1.addConstraint(Sketcher.Constraint("Vertical", 85))
sketch1.addConstraint(Sketcher.Constraint("Horizontal", 86))
sketch1.addConstraint(Sketcher.Constraint("Vertical", 87))
sketch1.addConstraint(Sketcher.Constraint("Horizontal", 88))
sketch1.addConstraint(Sketcher.Constraint("DistanceX", 73, 2, 73, 1, 4.4443))
sketch1.addConstraint(Sketcher.Constraint("DistanceX", 6, 1, 6, 2, 4.298461))
sketch1.addConstraint(Sketcher.Constraint("DistanceX", 10, 1, 10, 2, 4.54269))
sketch1.addConstraint(Sketcher.Constraint("DistanceX", 12, 1, 12, 2, 4.103079))
sketch1.addConstraint(Sketcher.Constraint("DistanceX", 14, 1, 14, 2, 4.62936))
sketch1.addConstraint(Sketcher.Constraint("DistanceX", 18, 1, 18, 2, 4.973681))
sketch1.addConstraint(Sketcher.Constraint("DistanceX", 20, 1, 20, 2, 4.421049))
sketch1.addConstraint(Sketcher.Constraint("DistanceX", 24, 1, 24, 2, 4.559208))
sketch1.addConstraint(Sketcher.Constraint("DistanceX", 26, 1, 26, 2, 4.144732))
sketch1.addConstraint(Sketcher.Constraint("DistanceX", 30, 1, 30, 2, 6.253961))
sketch1.addConstraint(Sketcher.Constraint("DistanceX", 34, 2, 34, 1, 4.491052))
sketch1.addConstraint(Sketcher.Constraint("DistanceX", 37, 1, 37, 2, 1.097569))
sketch1.addConstraint(Sketcher.Constraint("DistanceX", 39, 1, 39, 2, 4.350719))
sketch1.addConstraint(Sketcher.Constraint("DistanceX", 41, 1, 41, 2, 5.111762))
sketch1.addConstraint(Sketcher.Constraint("DistanceX", 46, 2, 46, 1, 8.94282))
sketch1.addConstraint(Sketcher.Constraint("DistanceX", 49, 2, 49, 1, 2.577528))
sketch1.addConstraint(Sketcher.Constraint("DistanceX", 51, 2, 51, 1, 4.798718))
sketch1.addConstraint(Sketcher.Constraint("DistanceX", 53, 2, 53, 1, 4.797962))
sketch1.addConstraint(Sketcher.Constraint("DistanceX", 59, 2, 59, 1, 4.373812))
sketch1.addConstraint(Sketcher.Constraint("DistanceX", 63, 2, 63, 1, 4.081309))
sketch1.addConstraint(Sketcher.Constraint("DistanceX", 65, 2, 65, 1, 4.544039))
sketch1.addConstraint(Sketcher.Constraint("DistanceX", 67, 2, 67, 1, 4.457771))
sketch1.addConstraint(Sketcher.Constraint("DistanceX", 71, 2, 71, 1, 4.384859))
sketch1.addConstraint(Sketcher.Constraint("DistanceX", 75, 2, 75, 1, 4.849141))
sketch1.addConstraint(Sketcher.Constraint("DistanceX", 83, 2, 83, 1, 3.75987))
sketch1.addConstraint(Sketcher.Constraint("DistanceX", 88, 2, 88, 1, 4.242931))
sketch1.addConstraint(Sketcher.Constraint("DistanceY", 7, 1, 7, 2, 4.738078))
sketch1.addConstraint(Sketcher.Constraint("DistanceY", 9, 1, 9, 2, 4.689231))
sketch1.addConstraint(Sketcher.Constraint("DistanceY", 17, 1, 17, 2, 4.35197))
sketch1.addConstraint(Sketcher.Constraint("DistanceY", 52, 2, 52, 1, 4.64979))
sketch1.addConstraint(Sketcher.Constraint("DistanceY", 58, 2, 58, 1, 4.301692))
sketch1.addConstraint(Sketcher.Constraint("DistanceY", 17, 2, -1, 1, 21.334799))
sketch1.addConstraint(Sketcher.Constraint("DistanceX", -1, 1, 70, 2, 5.038401))
sketch1.addConstraint(Sketcher.Constraint("DistanceX", 76, 2, -1, 1, 8.749501))
sketch1.addConstraint(Sketcher.Constraint("Distance", 29, 13.25496))
sketch1.addConstraint(Sketcher.Constraint("Distance", 32, 4.588889))
sketch1.addConstraint(Sketcher.Constraint("Distance", 33, 18.924049))
sketch1.addConstraint(Sketcher.Constraint("Distance", 38, 4.389442))
sketch1.addConstraint(Sketcher.Constraint("Distance", 44, 1.170181))
sketch1.addConstraint(Sketcher.Constraint("Distance", 47, 2.223462))
sketch1.addConstraint(Sketcher.Constraint("Distance", 54, 4.61548))
sketch1.addConstraint(Sketcher.Constraint("Distance", 57, 18.963871))
sketch1.addConstraint(Sketcher.Constraint("Distance", 70, 4.723748))
sketch1.addConstraint(Sketcher.Constraint("Distance", 72, 4.567242))
sketch1.addConstraint(Sketcher.Constraint("DistanceX", 1, 1, 1, 2, 13.774615))
sketch1.addConstraint(Sketcher.Constraint("DistanceX", 8, 1, 8, 2, 4.542693))
sketch1.addConstraint(Sketcher.Constraint("DistanceX", 16, 1, 16, 2, 4.144734))
sketch1.addConstraint(Sketcher.Constraint("DistanceX", 22, 1, 22, 2, 4.490127))
sketch1.addConstraint(Sketcher.Constraint("DistanceX", 28, 1, 28, 2, 3.189076))
sketch1.addConstraint(Sketcher.Constraint("DistanceX", 43, 1, 43, 2, 3.020588))
sketch1.addConstraint(Sketcher.Constraint("DistanceX", 55, 2, 55, 1, 3.565725))
sketch1.addConstraint(Sketcher.Constraint("DistanceX", 61, 1, 61, 2, 13.303252))
sketch1.addConstraint(Sketcher.Constraint("DistanceX", 69, 2, 69, 1, 4.569893))
sketch1.addConstraint(Sketcher.Constraint("DistanceX", 79, 2, 79, 1, 4.539597))
sketch1.addConstraint(Sketcher.Constraint("DistanceX", 81, 2, 81, 1, 3.756292))
sketch1.addConstraint(Sketcher.Constraint("DistanceX", 86, 2, 86, 1, 4.398932))
sketch1.addConstraint(Sketcher.Constraint("DistanceY", 3, 1, 3, 2, 3.614615))
sketch1.addConstraint(Sketcher.Constraint("DistanceY", 5, 1, 5, 2, 4.396152))
sketch1.addConstraint(Sketcher.Constraint("DistanceY", 11, 1, 11, 2, 4.640386))
sketch1.addConstraint(Sketcher.Constraint("DistanceY", 13, 1, 13, 2, 4.702436))
sketch1.addConstraint(Sketcher.Constraint("DistanceY", 15, 1, 15, 2, 4.835523))
sketch1.addConstraint(Sketcher.Constraint("DistanceY", 19, 1, 19, 2, 4.628286))
sketch1.addConstraint(Sketcher.Constraint("DistanceY", 21, 1, 21, 2, 4.766444))
sketch1.addConstraint(Sketcher.Constraint("DistanceY", 23, 1, 23, 2, 4.697364))
sketch1.addConstraint(Sketcher.Constraint("DistanceY", 25, 1, 25, 2, 4.766444))
sketch1.addConstraint(Sketcher.Constraint("DistanceY", 27, 1, 27, 2, 4.802893))
sketch1.addConstraint(Sketcher.Constraint("DistanceY", 40, 1, 40, 2, 4.949197))
sketch1.addConstraint(Sketcher.Constraint("DistanceY", 42, 1, 42, 2, 4.066173))
sketch1.addConstraint(Sketcher.Constraint("DistanceY", 45, 1, 45, 2, 9.310756))
sketch1.addConstraint(Sketcher.Constraint("DistanceY", 48, 2, 48, 1, 3.250685))
sketch1.addConstraint(Sketcher.Constraint("DistanceY", 60, 2, 60, 1, 6.790475))
sketch1.addConstraint(Sketcher.Constraint("DistanceY", 62, 2, 62, 1, 3.648058))
sketch1.addConstraint(Sketcher.Constraint("DistanceY", 64, 2, 64, 1, 4.430062))
sketch1.addConstraint(Sketcher.Constraint("DistanceY", 66, 2, 66, 1, 4.613707))
sketch1.addConstraint(Sketcher.Constraint("DistanceY", 68, 2, 68, 1, 4.679023))
sketch1.addConstraint(Sketcher.Constraint("DistanceY", 74, 2, 74, 1, 4.568084))
sketch1.addConstraint(Sketcher.Constraint("DistanceY", 78, 2, 78, 1, 4.249307))
sketch1.addConstraint(Sketcher.Constraint("DistanceY", 80, 2, 80, 1, 4.538875))
sketch1.addConstraint(Sketcher.Constraint("DistanceY", 85, 2, 85, 1, 4.480634))
sketch1.addConstraint(Sketcher.Constraint("DistanceY", 87, 2, 87, 1, 4.162006))
sketch1.addConstraint(Sketcher.Constraint("DistanceY", 0, 2, -1, 1, 58.57319))
sketch1.addConstraint(Sketcher.Constraint("DistanceY", 2, 2, -1, 1, 57.693958))
sketch1.addConstraint(Sketcher.Constraint("DistanceX", 4, 2, -1, 1, 16.160768))
sketch1.addConstraint(Sketcher.Constraint("DistanceX", -1, 1, 31, 2, 42.595262))
sketch1.addConstraint(Sketcher.Constraint("DistanceX", -1, 1, 32, 2, 47.17804))
sketch1.addConstraint(Sketcher.Constraint("DistanceY", 32, 2, -1, 1, 6.40247))
sketch1.addConstraint(Sketcher.Constraint("DistanceX", -1, 1, 33, 2, 46.201719))
sketch1.addConstraint(Sketcher.Constraint("DistanceX", -1, 1, 35, 2, 41.524491))
sketch1.addConstraint(Sketcher.Constraint("DistanceY", -1, 1, 40, 2, 25.59156))
sketch1.addConstraint(Sketcher.Constraint("DistanceY", -1, 1, 45, 2, 39.751779))
sketch1.addConstraint(Sketcher.Constraint("DistanceX", -1, 1, 46, 2, 49.874112))
sketch1.addConstraint(Sketcher.Constraint("DistanceY", -1, 1, 48, 2, 34.82151))
sketch1.addConstraint(Sketcher.Constraint("DistanceX", -1, 1, 54, 2, 36.34081))
sketch1.addConstraint(Sketcher.Constraint("DistanceY", -1, 1, 56, 2, 26.459059))
sketch1.addConstraint(Sketcher.Constraint("DistanceY", -1, 1, 57, 2, 26.162239))
sketch1.addConstraint(Sketcher.Constraint("DistanceY", 70, 2, -1, 1, 7.019591))
sketch1.addConstraint(Sketcher.Constraint("DistanceY", 74, 2, -1, 1, 16.147088))
sketch1.addConstraint(Sketcher.Constraint("DistanceX", 79, 2, -1, 1, 17.742191))
sketch1.addConstraint(Sketcher.Constraint("DistanceY", 80, 2, -1, 1, 29.94461))
sketch1.addConstraint(Sketcher.Constraint("DistanceX", 82, 2, -1, 1, 22.055859))
sketch1.addConstraint(Sketcher.Constraint("DistanceY", 85, 2, -1, 1, 39.635949))
sketch1.addConstraint(Sketcher.Constraint("Distance", 0, 14.186247))
sketch1.addConstraint(Sketcher.Constraint("Distance", 2, 1.144503))
sketch1.addConstraint(Sketcher.Constraint("Distance", 4, 4.121643))
sketch1.addConstraint(Sketcher.Constraint("Distance", 35, 3.608656))
sketch1.addConstraint(Sketcher.Constraint("Distance", 36, 3.072997))
sketch1.addConstraint(Sketcher.Constraint("Distance", 50, 4.390936))
sketch1.addConstraint(Sketcher.Constraint("Distance", 56, 5.272673))
sketch1.addConstraint(Sketcher.Constraint("Distance", 76, 4.867542))
sketch1.addConstraint(Sketcher.Constraint("Distance", 82, 4.739894))
sketch1.addConstraint(Sketcher.Constraint("Distance", 84, 0.753806))
sketch1.addConstraint(Sketcher.Constraint("Distance", 89, 1.078175))
sketch1.addConstraint(Sketcher.Constraint("DistanceX", -1, 1, 29, 2, 36.561966))
pad1 = body.newObject("PartDesign::Pad", "Pad")
pad1.Profile = sketch1
pad1.setExpression("Length", "Params.pad1_length")

doc.recompute()
